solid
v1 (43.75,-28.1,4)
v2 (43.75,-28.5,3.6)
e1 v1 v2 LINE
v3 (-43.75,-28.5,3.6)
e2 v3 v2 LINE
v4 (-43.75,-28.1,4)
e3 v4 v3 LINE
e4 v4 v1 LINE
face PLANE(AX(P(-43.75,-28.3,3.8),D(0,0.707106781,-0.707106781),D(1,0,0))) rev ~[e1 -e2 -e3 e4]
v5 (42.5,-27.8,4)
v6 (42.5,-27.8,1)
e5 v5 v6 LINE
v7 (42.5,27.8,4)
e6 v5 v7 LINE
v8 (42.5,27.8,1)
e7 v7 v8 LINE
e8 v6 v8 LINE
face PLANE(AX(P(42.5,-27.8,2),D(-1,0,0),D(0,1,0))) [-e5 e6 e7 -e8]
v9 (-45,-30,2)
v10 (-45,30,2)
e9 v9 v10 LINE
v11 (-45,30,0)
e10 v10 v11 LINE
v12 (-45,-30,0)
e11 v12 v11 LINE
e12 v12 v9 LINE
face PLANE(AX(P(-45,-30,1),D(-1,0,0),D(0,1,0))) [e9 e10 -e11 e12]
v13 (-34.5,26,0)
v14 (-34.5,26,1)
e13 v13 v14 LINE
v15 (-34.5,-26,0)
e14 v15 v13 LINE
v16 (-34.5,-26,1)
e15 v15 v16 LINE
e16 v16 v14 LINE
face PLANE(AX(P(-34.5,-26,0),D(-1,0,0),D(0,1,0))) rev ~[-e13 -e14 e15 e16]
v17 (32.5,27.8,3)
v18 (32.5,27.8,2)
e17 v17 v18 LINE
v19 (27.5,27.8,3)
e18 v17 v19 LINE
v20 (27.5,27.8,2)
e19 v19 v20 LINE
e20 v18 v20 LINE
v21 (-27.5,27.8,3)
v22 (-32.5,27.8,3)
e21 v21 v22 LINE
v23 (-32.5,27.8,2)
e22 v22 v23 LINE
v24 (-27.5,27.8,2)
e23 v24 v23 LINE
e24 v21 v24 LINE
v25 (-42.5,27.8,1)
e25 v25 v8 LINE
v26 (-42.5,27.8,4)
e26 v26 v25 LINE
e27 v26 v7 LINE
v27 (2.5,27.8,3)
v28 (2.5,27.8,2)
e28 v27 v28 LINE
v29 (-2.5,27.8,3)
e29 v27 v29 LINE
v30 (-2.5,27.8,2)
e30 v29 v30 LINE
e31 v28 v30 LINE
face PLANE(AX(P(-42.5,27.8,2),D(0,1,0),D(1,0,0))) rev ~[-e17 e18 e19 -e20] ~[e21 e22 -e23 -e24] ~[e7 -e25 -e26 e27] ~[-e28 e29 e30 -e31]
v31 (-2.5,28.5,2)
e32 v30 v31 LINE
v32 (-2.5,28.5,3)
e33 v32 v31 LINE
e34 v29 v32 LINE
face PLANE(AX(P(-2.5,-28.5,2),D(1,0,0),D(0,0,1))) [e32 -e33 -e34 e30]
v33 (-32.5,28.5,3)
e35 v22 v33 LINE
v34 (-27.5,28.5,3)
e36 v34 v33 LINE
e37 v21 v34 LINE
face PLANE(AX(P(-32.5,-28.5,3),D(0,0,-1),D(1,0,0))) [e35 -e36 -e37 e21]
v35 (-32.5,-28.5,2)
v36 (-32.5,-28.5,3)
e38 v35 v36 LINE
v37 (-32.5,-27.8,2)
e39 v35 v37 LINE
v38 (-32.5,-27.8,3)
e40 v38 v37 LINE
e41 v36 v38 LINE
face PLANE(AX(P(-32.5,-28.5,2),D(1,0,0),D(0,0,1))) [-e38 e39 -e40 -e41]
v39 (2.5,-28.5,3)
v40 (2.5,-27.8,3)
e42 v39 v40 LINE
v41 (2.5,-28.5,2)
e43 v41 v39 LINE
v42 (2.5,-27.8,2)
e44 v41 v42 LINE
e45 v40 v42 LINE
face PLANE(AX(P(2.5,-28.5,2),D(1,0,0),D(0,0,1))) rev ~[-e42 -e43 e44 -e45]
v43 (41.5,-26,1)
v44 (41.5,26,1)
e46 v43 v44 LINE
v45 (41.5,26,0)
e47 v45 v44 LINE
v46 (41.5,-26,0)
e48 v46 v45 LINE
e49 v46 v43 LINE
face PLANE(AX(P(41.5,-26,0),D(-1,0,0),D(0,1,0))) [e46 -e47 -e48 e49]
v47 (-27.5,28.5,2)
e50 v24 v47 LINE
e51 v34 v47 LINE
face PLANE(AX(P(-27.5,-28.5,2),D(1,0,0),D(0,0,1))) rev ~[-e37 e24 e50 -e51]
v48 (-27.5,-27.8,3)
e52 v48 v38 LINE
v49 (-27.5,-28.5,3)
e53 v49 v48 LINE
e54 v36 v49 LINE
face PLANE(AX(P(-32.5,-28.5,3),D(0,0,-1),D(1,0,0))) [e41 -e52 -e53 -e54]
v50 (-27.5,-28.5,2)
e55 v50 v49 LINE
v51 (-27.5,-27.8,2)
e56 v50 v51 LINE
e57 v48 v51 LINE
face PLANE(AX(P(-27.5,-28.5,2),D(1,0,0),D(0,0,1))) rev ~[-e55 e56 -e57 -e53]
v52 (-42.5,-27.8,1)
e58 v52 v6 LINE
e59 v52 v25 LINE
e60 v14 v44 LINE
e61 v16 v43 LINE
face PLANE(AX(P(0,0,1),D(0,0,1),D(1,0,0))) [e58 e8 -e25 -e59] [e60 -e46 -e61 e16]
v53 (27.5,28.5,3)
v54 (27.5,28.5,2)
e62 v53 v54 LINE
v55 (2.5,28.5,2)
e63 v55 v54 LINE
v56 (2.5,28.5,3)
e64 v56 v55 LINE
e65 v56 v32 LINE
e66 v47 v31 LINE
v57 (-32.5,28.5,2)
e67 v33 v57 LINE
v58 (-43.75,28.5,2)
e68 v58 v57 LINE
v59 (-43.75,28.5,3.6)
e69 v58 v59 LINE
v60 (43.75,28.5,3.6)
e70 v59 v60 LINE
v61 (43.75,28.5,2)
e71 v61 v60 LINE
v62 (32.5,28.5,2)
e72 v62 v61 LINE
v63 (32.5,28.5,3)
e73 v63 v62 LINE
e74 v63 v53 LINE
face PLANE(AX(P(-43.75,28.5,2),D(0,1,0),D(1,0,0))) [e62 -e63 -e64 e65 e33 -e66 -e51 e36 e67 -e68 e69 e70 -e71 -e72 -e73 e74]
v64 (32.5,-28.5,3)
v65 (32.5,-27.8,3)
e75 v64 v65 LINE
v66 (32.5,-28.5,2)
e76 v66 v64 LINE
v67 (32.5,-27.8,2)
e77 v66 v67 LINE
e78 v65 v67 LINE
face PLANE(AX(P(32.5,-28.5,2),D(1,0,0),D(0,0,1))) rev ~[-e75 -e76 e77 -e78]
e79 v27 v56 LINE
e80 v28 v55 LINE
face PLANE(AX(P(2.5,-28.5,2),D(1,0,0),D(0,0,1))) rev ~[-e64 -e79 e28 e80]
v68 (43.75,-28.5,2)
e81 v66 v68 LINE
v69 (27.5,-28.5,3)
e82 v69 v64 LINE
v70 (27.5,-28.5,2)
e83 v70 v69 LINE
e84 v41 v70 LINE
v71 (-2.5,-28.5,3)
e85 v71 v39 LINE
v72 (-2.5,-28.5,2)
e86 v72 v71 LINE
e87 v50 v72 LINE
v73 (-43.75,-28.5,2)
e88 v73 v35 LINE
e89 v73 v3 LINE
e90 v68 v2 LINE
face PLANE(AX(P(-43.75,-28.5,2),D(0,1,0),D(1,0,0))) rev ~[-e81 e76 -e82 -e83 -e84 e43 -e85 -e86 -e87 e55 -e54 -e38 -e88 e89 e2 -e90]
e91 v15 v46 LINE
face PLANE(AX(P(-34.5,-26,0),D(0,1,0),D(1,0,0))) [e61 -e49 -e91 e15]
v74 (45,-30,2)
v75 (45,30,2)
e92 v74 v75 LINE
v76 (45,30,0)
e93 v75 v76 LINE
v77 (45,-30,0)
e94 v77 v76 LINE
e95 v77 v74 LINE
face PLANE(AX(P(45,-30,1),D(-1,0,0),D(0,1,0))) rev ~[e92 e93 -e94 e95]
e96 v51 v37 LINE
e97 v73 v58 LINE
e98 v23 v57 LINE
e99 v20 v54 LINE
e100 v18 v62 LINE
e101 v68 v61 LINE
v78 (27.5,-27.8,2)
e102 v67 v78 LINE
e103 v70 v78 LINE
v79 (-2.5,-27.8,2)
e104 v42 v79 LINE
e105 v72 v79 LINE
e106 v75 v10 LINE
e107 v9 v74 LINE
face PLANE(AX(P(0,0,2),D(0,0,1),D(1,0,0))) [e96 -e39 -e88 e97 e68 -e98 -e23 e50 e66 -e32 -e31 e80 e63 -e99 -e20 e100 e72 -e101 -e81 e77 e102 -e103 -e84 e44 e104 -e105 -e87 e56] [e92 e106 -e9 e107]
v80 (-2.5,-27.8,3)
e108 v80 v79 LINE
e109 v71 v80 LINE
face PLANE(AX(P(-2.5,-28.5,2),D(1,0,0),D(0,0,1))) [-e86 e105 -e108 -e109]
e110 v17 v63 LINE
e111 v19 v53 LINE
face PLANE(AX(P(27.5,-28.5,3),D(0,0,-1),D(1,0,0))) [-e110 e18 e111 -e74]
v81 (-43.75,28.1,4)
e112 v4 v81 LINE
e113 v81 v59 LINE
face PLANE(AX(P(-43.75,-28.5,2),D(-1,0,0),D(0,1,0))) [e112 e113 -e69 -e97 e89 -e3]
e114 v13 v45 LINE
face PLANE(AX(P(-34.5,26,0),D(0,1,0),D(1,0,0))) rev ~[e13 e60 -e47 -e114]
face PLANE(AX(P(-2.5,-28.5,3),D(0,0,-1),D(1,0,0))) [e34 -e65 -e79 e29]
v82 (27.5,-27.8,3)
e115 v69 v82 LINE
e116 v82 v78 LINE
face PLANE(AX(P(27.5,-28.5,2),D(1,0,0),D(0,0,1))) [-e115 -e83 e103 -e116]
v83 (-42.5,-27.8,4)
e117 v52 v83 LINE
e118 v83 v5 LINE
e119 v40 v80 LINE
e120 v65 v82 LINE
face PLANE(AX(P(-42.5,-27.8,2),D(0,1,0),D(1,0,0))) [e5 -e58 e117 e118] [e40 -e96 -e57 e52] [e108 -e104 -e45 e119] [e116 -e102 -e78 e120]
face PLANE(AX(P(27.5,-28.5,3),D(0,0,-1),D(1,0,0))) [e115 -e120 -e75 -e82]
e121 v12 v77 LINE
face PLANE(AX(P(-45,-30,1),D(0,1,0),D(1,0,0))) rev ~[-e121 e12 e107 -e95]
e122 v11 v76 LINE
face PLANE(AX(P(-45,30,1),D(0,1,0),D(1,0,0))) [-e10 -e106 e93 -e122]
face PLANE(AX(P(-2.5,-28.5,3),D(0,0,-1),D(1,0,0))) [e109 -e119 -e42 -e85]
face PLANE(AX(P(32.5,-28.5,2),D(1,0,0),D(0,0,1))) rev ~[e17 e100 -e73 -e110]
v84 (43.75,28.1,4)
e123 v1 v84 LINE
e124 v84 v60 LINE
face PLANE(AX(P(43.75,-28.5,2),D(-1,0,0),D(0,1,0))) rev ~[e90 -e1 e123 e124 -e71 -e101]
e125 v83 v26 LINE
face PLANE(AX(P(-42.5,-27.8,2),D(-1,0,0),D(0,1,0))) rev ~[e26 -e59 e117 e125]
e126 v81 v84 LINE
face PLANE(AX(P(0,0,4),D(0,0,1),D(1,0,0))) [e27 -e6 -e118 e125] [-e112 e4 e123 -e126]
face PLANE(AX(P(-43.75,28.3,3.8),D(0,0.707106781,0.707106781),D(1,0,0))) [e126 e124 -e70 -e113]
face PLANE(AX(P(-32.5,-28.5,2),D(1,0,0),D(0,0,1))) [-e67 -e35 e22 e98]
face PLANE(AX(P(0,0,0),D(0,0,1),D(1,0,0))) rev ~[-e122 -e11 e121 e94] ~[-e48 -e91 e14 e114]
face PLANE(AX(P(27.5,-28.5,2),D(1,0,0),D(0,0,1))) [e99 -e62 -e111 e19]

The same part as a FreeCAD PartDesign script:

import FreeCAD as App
import Part
import Sketcher

V = App.Vector


def edges_at(feature, points):
    """Names of the edges that pass closest to the given points."""
    edges = feature.Shape.Edges
    near = lambda p: min(range(len(edges)), key=lambda i: edges[i].distToShape(Part.Vertex(*p))[0])
    return sorted({f"Edge{near(p) + 1}" for p in points})


def add_polygon(sketch, points):
    """Adds a closed chain of lines whose ends are joined by coincident constraints."""
    first, n = sketch.GeometryCount, len(points)
    for a, b in zip(points, points[1:] + points[:1]):
        sketch.addGeometry(Part.LineSegment(App.Vector(*a, 0), App.Vector(*b, 0)), False)
    for i in range(n):
        sketch.addConstraint(Sketcher.Constraint("Coincident", first + i, 2, first + (i + 1) % n, 1))

doc = App.newDocument("Part")
body = doc.addObject("PartDesign::Body", "Body")

# Sketch on XY plane
sketch1 = body.newObject("Sketcher::SketchObject", "Sketch")
sketch1.AttachmentSupport = (doc.getObject("XY_Plane"), [""])
sketch1.MapMode = "FlatFace"
add_polygon(sketch1, [(-45, 30), (-45, -30), (45, -30), (45, 30)])  # lines 0-3
add_polygon(sketch1, [(41.5, -26), (-34.5, -26), (-34.5, 26), (41.5, 26)])  # lines 4-7
sketch1.addConstraint([
    Sketcher.Constraint("Vertical", 0),
    Sketcher.Constraint("Horizontal", 1),
    Sketcher.Constraint("Vertical", 2),
    Sketcher.Constraint("Horizontal", 3),
    Sketcher.Constraint("Horizontal", 4),
    Sketcher.Constraint("Vertical", 5),
    Sketcher.Constraint("Horizontal", 6),
    Sketcher.Constraint("Vertical", 7),
    Sketcher.Constraint("Symmetric", 0, 2, 2, 2, -1, 1),
    Sketcher.Constraint("DistanceX", 1, 1, 1, 2, 90.0),
    Sketcher.Constraint("DistanceX", 4, 2, 4, 1, 76.0),
    Sketcher.Constraint("DistanceY", 0, 2, 0, 1, 60.0),
    Sketcher.Constraint("DistanceY", 5, 1, 5, 2, 52.0),
    Sketcher.Constraint("DistanceY", 4, 2, -1, 1, 26.0),
    Sketcher.Constraint("DistanceX", 4, 2, -1, 1, 34.5),
])
pad1 = body.newObject("PartDesign::Pad", "Pad")
pad1.Profile = sketch1
pad1.Length = 1

# Sketch on XY plane
sketch2 = body.newObject("Sketcher::SketchObject", "Sketch001")
sketch2.AttachmentSupport = (doc.getObject("XY_Plane"), [""])
sketch2.MapMode = "FlatFace"
sketch2.AttachmentOffset = App.Placement(V(0, 0, 1), App.Rotation())
add_polygon(sketch2, [(-45, 30), (-45, -30), (45, -30), (45, 30)])  # lines 0-3
add_polygon(sketch2, [(42.5, -27.8), (-42.5, -27.8), (-42.5, 27.8), (42.5, 27.8)])  # lines 4-7
sketch2.addConstraint([
    Sketcher.Constraint("Vertical", 0),
    Sketcher.Constraint("Horizontal", 1),
    Sketcher.Constraint("Vertical", 2),
    Sketcher.Constraint("Horizontal", 3),
    Sketcher.Constraint("Horizontal", 4),
    Sketcher.Constraint("Vertical", 5),
    Sketcher.Constraint("Horizontal", 6),
    Sketcher.Constraint("Vertical", 7),
    Sketcher.Constraint("Symmetric", 0, 2, 2, 2, -1, 1),
    Sketcher.Constraint("Symmetric", 4, 2, 6, 2, -1, 1),
    Sketcher.Constraint("DistanceX", 1, 1, 1, 2, 90.0),
    Sketcher.Constraint("DistanceX", 4, 2, 4, 1, 85.0),
    Sketcher.Constraint("DistanceY", 0, 2, 0, 1, 60.0),
    Sketcher.Constraint("DistanceY", 5, 1, 5, 2, 55.6),
])
pad2 = body.newObject("PartDesign::Pad", "Pad001")
pad2.Profile = sketch2
pad2.Length = 1

# Sketch on XY plane
sketch3 = body.newObject("Sketcher::SketchObject", "Sketch002")
sketch3.AttachmentSupport = (doc.getObject("XY_Plane"), [""])
sketch3.MapMode = "FlatFace"
sketch3.AttachmentOffset = App.Placement(V(0, 0, 2), App.Rotation())
add_polygon(sketch3, [(-43.75, 28.5), (-43.75, -28.5), (43.75, -28.5), (43.75, 28.5)])  # lines 0-3
add_polygon(sketch3, [(42.5, -27.8), (-42.5, -27.8), (-42.5, 27.8), (42.5, 27.8)])  # lines 4-7
sketch3.addConstraint([
    Sketcher.Constraint("Vertical", 0),
    Sketcher.Constraint("Horizontal", 1),
    Sketcher.Constraint("Vertical", 2),
    Sketcher.Constraint("Horizontal", 3),
    Sketcher.Constraint("Horizontal", 4),
    Sketcher.Constraint("Vertical", 5),
    Sketcher.Constraint("Horizontal", 6),
    Sketcher.Constraint("Vertical", 7),
    Sketcher.Constraint("Symmetric", 0, 2, 2, 2, -1, 1),
    Sketcher.Constraint("Symmetric", 4, 2, 6, 2, -1, 1),
    Sketcher.Constraint("DistanceX", 4, 2, 4, 1, 85.0),
    Sketcher.Constraint("DistanceY", 0, 2, 0, 1, 57.0),
    Sketcher.Constraint("DistanceX", 1, 1, 1, 2, 87.5),
    Sketcher.Constraint("DistanceY", 5, 1, 5, 2, 55.6),
])
pad3 = body.newObject("PartDesign::Pad", "Pad002")
pad3.Profile = sketch3
pad3.Length = 2

# Sketch on XZ plane
sketch4 = body.newObject("Sketcher::SketchObject", "Sketch003")
sketch4.AttachmentSupport = (doc.getObject("XZ_Plane"), [""])
sketch4.MapMode = "FlatFace"
sketch4.AttachmentOffset = App.Placement(V(0, 0, 28.5), App.Rotation())
add_polygon(sketch4, [(-32.5, 3), (-32.5, 2), (-27.5, 2), (-27.5, 3)])  # lines 0-3
add_polygon(sketch4, [(-2.5, 3), (-2.5, 2), (2.5, 2), (2.5, 3)])  # lines 4-7
add_polygon(sketch4, [(27.5, 3), (27.5, 2), (32.5, 2), (32.5, 3)])  # lines 8-11
sketch4.addConstraint([
    Sketcher.Constraint("Vertical", 0),
    Sketcher.Constraint("Horizontal", 1),
    Sketcher.Constraint("Vertical", 2),
    Sketcher.Constraint("Horizontal", 3),
    Sketcher.Constraint("Vertical", 4),
    Sketcher.Constraint("Horizontal", 5),
    Sketcher.Constraint("Vertical", 6),
    Sketcher.Constraint("Horizontal", 7),
    Sketcher.Constraint("Vertical", 8),
    Sketcher.Constraint("Horizontal", 9),
    Sketcher.Constraint("Vertical", 10),
    Sketcher.Constraint("Horizontal", 11),
    Sketcher.Constraint("Symmetric", 1, 2, 8, 2, -2),
    Sketcher.Constraint("Symmetric", 3, 2, 10, 2, -2),
    Sketcher.Constraint("Horizontal", 1, 2, 4, 2),
    Sketcher.Constraint("Horizontal", 3, 2, 6, 2),
    Sketcher.Constraint("Equal", 3, 5),
    Sketcher.Constraint("DistanceX", 1, 1, 1, 2, 5.0),
    Sketcher.Constraint("DistanceY", 0, 2, 0, 1, 1.0),
    Sketcher.Constraint("DistanceY", -1, 1, 0, 2, 2.0),
    Sketcher.Constraint("DistanceX", 1, 2, 4, 2, 25.0),
    Sketcher.Constraint("DistanceX", 5, 2, 8, 2, 25.0),
])
pocket1 = body.newObject("PartDesign::Pocket", "Pocket")
pocket1.Profile = sketch4
pocket1.Type = "ThroughAll"
doc.recompute()

chamfer = body.newObject("PartDesign::Chamfer", "Chamfer")
chamfer.Base = (pocket1, edges_at(pocket1, [(0, -28.5, 4), (0, 28.5, 4)]))
chamfer.Size = 0.4

doc.recompute()
